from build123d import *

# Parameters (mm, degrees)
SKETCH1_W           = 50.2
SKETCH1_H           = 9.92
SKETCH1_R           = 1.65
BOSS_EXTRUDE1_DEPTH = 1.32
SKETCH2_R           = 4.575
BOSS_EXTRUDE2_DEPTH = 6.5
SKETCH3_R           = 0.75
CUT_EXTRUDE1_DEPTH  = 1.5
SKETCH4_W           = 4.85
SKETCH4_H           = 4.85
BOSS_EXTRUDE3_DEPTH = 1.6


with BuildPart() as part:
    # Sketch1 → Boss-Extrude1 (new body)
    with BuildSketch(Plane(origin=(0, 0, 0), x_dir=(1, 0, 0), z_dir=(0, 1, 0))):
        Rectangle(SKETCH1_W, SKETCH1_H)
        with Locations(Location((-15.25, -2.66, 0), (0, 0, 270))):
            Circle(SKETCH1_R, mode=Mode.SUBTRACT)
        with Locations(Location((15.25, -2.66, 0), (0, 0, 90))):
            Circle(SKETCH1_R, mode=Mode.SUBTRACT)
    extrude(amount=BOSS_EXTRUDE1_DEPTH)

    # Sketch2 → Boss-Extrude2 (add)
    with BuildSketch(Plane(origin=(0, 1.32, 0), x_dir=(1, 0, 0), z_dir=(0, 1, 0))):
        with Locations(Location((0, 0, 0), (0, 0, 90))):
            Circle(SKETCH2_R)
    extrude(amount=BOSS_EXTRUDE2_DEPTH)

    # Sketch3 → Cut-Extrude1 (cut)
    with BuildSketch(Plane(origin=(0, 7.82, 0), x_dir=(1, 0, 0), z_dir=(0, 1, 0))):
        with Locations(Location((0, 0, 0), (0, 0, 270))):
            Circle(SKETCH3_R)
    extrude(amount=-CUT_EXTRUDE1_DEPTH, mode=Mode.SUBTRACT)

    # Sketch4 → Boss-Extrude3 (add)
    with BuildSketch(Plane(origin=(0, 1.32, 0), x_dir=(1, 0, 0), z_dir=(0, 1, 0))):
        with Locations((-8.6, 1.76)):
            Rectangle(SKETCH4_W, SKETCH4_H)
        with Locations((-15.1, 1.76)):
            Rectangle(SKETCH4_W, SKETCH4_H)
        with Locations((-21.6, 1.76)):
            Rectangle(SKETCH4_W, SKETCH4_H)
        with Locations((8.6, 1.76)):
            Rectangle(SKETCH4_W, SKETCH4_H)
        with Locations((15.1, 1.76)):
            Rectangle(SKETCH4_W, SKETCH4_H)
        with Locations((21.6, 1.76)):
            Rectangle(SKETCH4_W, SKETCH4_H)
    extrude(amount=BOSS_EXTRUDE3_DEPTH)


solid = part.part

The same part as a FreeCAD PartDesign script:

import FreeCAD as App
import Part
import Sketcher
from FreeCAD import Vector

doc = App.newDocument("Part")
params = doc.addObject("Spreadsheet::Sheet", "Params")
for row, (alias, value) in enumerate([
    ("sketch1_diameter", "3.3 mm"),
    ("sketch1_width", "50.2 mm"),
    ("sketch1_height", "9.92 mm"),
    ("pad1_length", "1.32 mm"),
    ("sketch2_diameter", "9.15 mm"),
    ("pad2_length", "6.5 mm"),
    ("sketch3_diameter", "1.5 mm"),
    ("pocket1_length", "1.5 mm"),
    ("sketch4_width", "4.85 mm"),
    ("pad3_length", "1.6 mm"),
], start=1):
    params.set(f"A{row}", alias)
    params.set(f"B{row}", "=" + value)
    params.setAlias(f"B{row}", alias)

body = doc.addObject("PartDesign::Body", "Body")

sketch1 = doc.addObject("Sketcher::SketchObject", "Sketch")
body.addObject(sketch1)
sketch1.AttachmentSupport = (doc.XZ_Plane, [""])
sketch1.MapMode = "FlatFace"
sketch1.addGeometry(Part.LineSegment(Vector(-25.1, -5, 0), Vector(-25.1, 5, 0)), False)
sketch1.addGeometry(Part.LineSegment(Vector(-25.1, 5, 0), Vector(25.1, 5, 0)), False)
sketch1.addGeometry(Part.LineSegment(Vector(25.1, 5, 0), Vector(25.1, -5, 0)), False)
sketch1.addGeometry(Part.LineSegment(Vector(25.1, -5, 0), Vector(-25.1, -5, 0)), False)
sketch1.addGeometry(Part.Circle(Vector(-15.2, 2.7, 0), Vector(0, 0, 1), 1.6), False)
sketch1.addGeometry(Part.Circle(Vector(15.2, 2.7, 0), Vector(0, 0, 1), 1.6), False)
sketch1.addConstraint(Sketcher.Constraint("Coincident", 0, 2, 1, 1))
sketch1.addConstraint(Sketcher.Constraint("Coincident", 1, 2, 2, 1))
sketch1.addConstraint(Sketcher.Constraint("Coincident", 2, 2, 3, 1))
sketch1.addConstraint(Sketcher.Constraint("Coincident", 3, 2, 0, 1))
sketch1.addConstraint(Sketcher.Constraint("Vertical", 0))
sketch1.addConstraint(Sketcher.Constraint("Horizontal", 1))
sketch1.addConstraint(Sketcher.Constraint("Vertical", 2))
sketch1.addConstraint(Sketcher.Constraint("Horizontal", 3))
sketch1.addConstraint(Sketcher.Constraint("Equal", 4, 5))
sketch1.addConstraint(Sketcher.Constraint("Symmetric", 0, 2, 2, 2, -1, 1))
sketch1.addConstraint(Sketcher.Constraint("Symmetric", 4, 3, 5, 3, -2))
sketch1.addConstraint(Sketcher.Constraint("Diameter", 4, 3.3))
sketch1.addConstraint(Sketcher.Constraint("DistanceX", 1, 1, 1, 2, 50.2))
sketch1.addConstraint(Sketcher.Constraint("DistanceY", 0, 1, 0, 2, 9.92))
sketch1.addConstraint(Sketcher.Constraint("DistanceX", 4, 3, 5, 3, 30.5))
sketch1.addConstraint(Sketcher.Constraint("DistanceY", 4, 3, 0, 2, 2.3))
sketch1.setExpression("Constraints[11]", "Params.sketch1_diameter")
sketch1.setExpression("Constraints[12]", "Params.sketch1_width")
sketch1.setExpression("Constraints[13]", "Params.sketch1_height")
pad1 = doc.addObject("PartDesign::Pad", "Pad")
body.addObject(pad1)
pad1.Profile = sketch1
pad1.setExpression("Length", "Params.pad1_length")
pad1.Reversed = True

sketch2 = doc.addObject("Sketcher::SketchObject", "Sketch001")
body.addObject(sketch2)
sketch2.AttachmentSupport = (doc.XZ_Plane, [""])
sketch2.MapMode = "FlatFace"
sketch2.AttachmentOffset = App.Placement(Vector(0, 0, -1.32), App.Rotation())
sketch2.addGeometry(Part.Circle(Vector(0, 0, 0), Vector(0, 0, 1), 4.6), False)
sketch2.addConstraint(Sketcher.Constraint("Coincident", 0, 3, -1, 1))
sketch2.addConstraint(Sketcher.Constraint("Diameter", 0, 9.15))
sketch2.setExpression("Constraints[1]", "Params.sketch2_diameter")
pad2 = doc.addObject("PartDesign::Pad", "Pad001")
body.addObject(pad2)
pad2.Profile = sketch2
pad2.setExpression("Length", "Params.pad2_length")
pad2.Reversed = True

sketch3 = doc.addObject("Sketcher::SketchObject", "Sketch002")
body.addObject(sketch3)
sketch3.AttachmentSupport = (doc.XZ_Plane, [""])
sketch3.MapMode = "FlatFace"
sketch3.AttachmentOffset = App.Placement(Vector(0, 0, -7.82), App.Rotation())
sketch3.addGeometry(Part.Circle(Vector(0, 0, 0), Vector(0, 0, 1), 0.8), False)
sketch3.addConstraint(Sketcher.Constraint("Coincident", 0, 3, -1, 1))
sketch3.addConstraint(Sketcher.Constraint("Diameter", 0, 1.5))
sketch3.setExpression("Constraints[1]", "Params.sketch3_diameter")
pocket1 = doc.addObject("PartDesign::Pocket", "Pocket")
body.addObject(pocket1)
pocket1.Profile = sketch3
pocket1.setExpression("Length", "Params.pocket1_length")
pocket1.Reversed = True

sketch4 = doc.addObject("Sketcher::SketchObject", "Sketch003")
body.addObject(sketch4)
sketch4.AttachmentSupport = (doc.XZ_Plane, [""])
sketch4.MapMode = "FlatFace"
sketch4.AttachmentOffset = App.Placement(Vector(0, 0, -1.32), App.Rotation())
sketch4.addGeometry(Part.LineSegment(Vector(-11, -4.2, 0), Vector(-11, 0.7, 0)), False)
sketch4.addGeometry(Part.LineSegment(Vector(-11, 0.7, 0), Vector(-6.2, 0.7, 0)), False)
sketch4.addGeometry(Part.LineSegment(Vector(-6.2, 0.7, 0), Vector(-6.2, -4.2, 0)), False)
sketch4.addGeometry(Part.LineSegment(Vector(-6.2, -4.2, 0), Vector(-11, -4.2, 0)), False)
sketch4.addGeometry(Part.LineSegment(Vector(-17.5, -4.2, 0), Vector(-17.5, 0.7, 0)), False)
sketch4.addGeometry(Part.LineSegment(Vector(-17.5, 0.7, 0), Vector(-12.7, 0.7, 0)), False)
sketch4.addGeometry(Part.LineSegment(Vector(-12.7, 0.7, 0), Vector(-12.7, -4.2, 0)), False)
sketch4.addGeometry(Part.LineSegment(Vector(-12.7, -4.2, 0), Vector(-17.5, -4.2, 0)), False)
sketch4.addGeometry(Part.LineSegment(Vector(-24, -4.2, 0), Vector(-24, 0.7, 0)), False)
sketch4.addGeometry(Part.LineSegment(Vector(-24, 0.7, 0), Vector(-19.2, 0.7, 0)), False)
sketch4.addGeometry(Part.LineSegment(Vector(-19.2, 0.7, 0), Vector(-19.2, -4.2, 0)), False)
sketch4.addGeometry(Part.LineSegment(Vector(-19.2, -4.2, 0), Vector(-24, -4.2, 0)), False)
sketch4.addGeometry(Part.LineSegment(Vector(6.2, -4.2, 0), Vector(6.2, 0.7, 0)), False)
sketch4.addGeometry(Part.LineSegment(Vector(6.2, 0.7, 0), Vector(11, 0.7, 0)), False)
sketch4.addGeometry(Part.LineSegment(Vector(11, 0.7, 0), Vector(11, -4.2, 0)), False)
sketch4.addGeometry(Part.LineSegment(Vector(11, -4.2, 0), Vector(6.2, -4.2, 0)), False)
sketch4.addGeometry(Part.LineSegment(Vector(12.7, -4.2, 0), Vector(12.7, 0.7, 0)), False)
sketch4.addGeometry(Part.LineSegment(Vector(12.7, 0.7, 0), Vector(17.5, 0.7, 0)), False)
sketch4.addGeometry(Part.LineSegment(Vector(17.5, 0.7, 0), Vector(17.5, -4.2, 0)), False)
sketch4.addGeometry(Part.LineSegment(Vector(17.5, -4.2, 0), Vector(12.7, -4.2, 0)), False)
sketch4.addGeometry(Part.LineSegment(Vector(19.2, -4.2, 0), Vector(19.2, 0.7, 0)), False)
sketch4.addGeometry(Part.LineSegment(Vector(19.2, 0.7, 0), Vector(24, 0.7, 0)), False)
sketch4.addGeometry(Part.LineSegment(Vector(24, 0.7, 0), Vector(24, -4.2, 0)), False)
sketch4.addGeometry(Part.LineSegment(Vector(24, -4.2, 0), Vector(19.2, -4.2, 0)), False)
sketch4.addConstraint(Sketcher.Constraint("Coincident", 0, 2, 1, 1))
sketch4.addConstraint(Sketcher.Constraint("Coincident", 1, 2, 2, 1))
sketch4.addConstraint(Sketcher.Constraint("Coincident", 2, 2, 3, 1))
sketch4.addConstraint(Sketcher.Constraint("Coincident", 3, 2, 0, 1))
sketch4.addConstraint(Sketcher.Constraint("Coincident", 4, 2, 5, 1))
sketch4.addConstraint(Sketcher.Constraint("Coincident", 5, 2, 6, 1))
sketch4.addConstraint(Sketcher.Constraint("Coincident", 6, 2, 7, 1))
sketch4.addConstraint(Sketcher.Constraint("Coincident", 7, 2, 4, 1))
sketch4.addConstraint(Sketcher.Constraint("Coincident", 8, 2, 9, 1))
sketch4.addConstraint(Sketcher.Constraint("Coincident", 9, 2, 10, 1))
sketch4.addConstraint(Sketcher.Constraint("Coincident", 10, 2, 11, 1))
sketch4.addConstraint(Sketcher.Constraint("Coincident", 11, 2, 8, 1))
sketch4.addConstraint(Sketcher.Constraint("Coincident", 12, 2, 13, 1))
sketch4.addConstraint(Sketcher.Constraint("Coincident", 13, 2, 14, 1))
sketch4.addConstraint(Sketcher.Constraint("Coincident", 14, 2, 15, 1))
sketch4.addConstraint(Sketcher.Constraint("Coincident", 15, 2, 12, 1))
sketch4.addConstraint(Sketcher.Constraint("Coincident", 16, 2, 17, 1))
sketch4.addConstraint(Sketcher.Constraint("Coincident", 17, 2, 18, 1))
sketch4.addConstraint(Sketcher.Constraint("Coincident", 18, 2, 19, 1))
sketch4.addConstraint(Sketcher.Constraint("Coincident", 19, 2, 16, 1))
sketch4.addConstraint(Sketcher.Constraint("Coincident", 20, 2, 21, 1))
sketch4.addConstraint(Sketcher.Constraint("Coincident", 21, 2, 22, 1))
sketch4.addConstraint(Sketcher.Constraint("Coincident", 22, 2, 23, 1))
sketch4.addConstraint(Sketcher.Constraint("Coincident", 23, 2, 20, 1))
sketch4.addConstraint(Sketcher.Constraint("Vertical", 0))
sketch4.addConstraint(Sketcher.Constraint("Horizontal", 1))
sketch4.addConstraint(Sketcher.Constraint("Vertical", 2))
sketch4.addConstraint(Sketcher.Constraint("Horizontal", 3))
sketch4.addConstraint(Sketcher.Constraint("Vertical", 4))
sketch4.addConstraint(Sketcher.Constraint("Horizontal", 5))
sketch4.addConstraint(Sketcher.Constraint("Vertical", 6))
sketch4.addConstraint(Sketcher.Constraint("Horizontal", 7))
sketch4.addConstraint(Sketcher.Constraint("Vertical", 8))
sketch4.addConstraint(Sketcher.Constraint("Horizontal", 9))
sketch4.addConstraint(Sketcher.Constraint("Vertical", 10))
sketch4.addConstraint(Sketcher.Constraint("Horizontal", 11))
sketch4.addConstraint(Sketcher.Constraint("Vertical", 12))
sketch4.addConstraint(Sketcher.Constraint("Horizontal", 13))
sketch4.addConstraint(Sketcher.Constraint("Vertical", 14))
sketch4.addConstraint(Sketcher.Constraint("Horizontal", 15))
sketch4.addConstraint(Sketcher.Constraint("Vertical", 16))
sketch4.addConstraint(Sketcher.Constraint("Horizontal", 17))
sketch4.addConstraint(Sketcher.Constraint("Vertical", 18))
sketch4.addConstraint(Sketcher.Constraint("Horizontal", 19))
sketch4.addConstraint(Sketcher.Constraint("Vertical", 20))
sketch4.addConstraint(Sketcher.Constraint("Horizontal", 21))
sketch4.addConstraint(Sketcher.Constraint("Vertical", 22))
sketch4.addConstraint(Sketcher.Constraint("Horizontal", 23))
sketch4.addConstraint(Sketcher.Constraint("Symmetric", 1, 2, 12, 2, -2))
sketch4.addConstraint(Sketcher.Constraint("Symmetric", 3, 2, 14, 2, -2))
sketch4.addConstraint(Sketcher.Constraint("Symmetric", 5, 2, 16, 2, -2))
sketch4.addConstraint(Sketcher.Constraint("Symmetric", 7, 2, 18, 2, -2))
sketch4.addConstraint(Sketcher.Constraint("Symmetric", 9, 2, 20, 2, -2))
sketch4.addConstraint(Sketcher.Constraint("Symmetric", 11, 2, 22, 2, -2))
sketch4.addConstraint(Sketcher.Constraint("Horizontal", 1, 2, 4, 2))
sketch4.addConstraint(Sketcher.Constraint("Horizontal", 3, 2, 6, 2))
sketch4.addConstraint(Sketcher.Constraint("Horizontal", 5, 2, 8, 2))
sketch4.addConstraint(Sketcher.Constraint("Horizontal", 7, 2, 10, 2))
sketch4.addConstraint(Sketcher.Constraint("Equal", 3, 5))
sketch4.addConstraint(Sketcher.Constraint("Equal", 7, 9))
sketch4.addConstraint(Sketcher.Constraint("Equal", 23, 0))
sketch4.addConstraint(Sketcher.Constraint("DistanceX", 8, 2, 0, 2, 13.0))
sketch4.addConstraint(Sketcher.Constraint("DistanceX", 1, 1, 1, 2, 4.85))
sketch4.addConstraint(Sketcher.Constraint("DistanceX", 4, 2, 0, 2, 6.5))
sketch4.addConstraint(Sketcher.Constraint("DistanceX", 0, 2, 12, 2, 17.2))
sketch4.addConstraint(Sketcher.Constraint("DistanceY", -1, 1, 0, 2, 0.665))
sketch4.setExpression("Constraints[62]", "Params.sketch4_width")
pad3 = doc.addObject("PartDesign::Pad", "Pad002")
body.addObject(pad3)
pad3.Profile = sketch4
pad3.setExpression("Length", "Params.pad3_length")
pad3.Reversed = True

doc.recompute()
